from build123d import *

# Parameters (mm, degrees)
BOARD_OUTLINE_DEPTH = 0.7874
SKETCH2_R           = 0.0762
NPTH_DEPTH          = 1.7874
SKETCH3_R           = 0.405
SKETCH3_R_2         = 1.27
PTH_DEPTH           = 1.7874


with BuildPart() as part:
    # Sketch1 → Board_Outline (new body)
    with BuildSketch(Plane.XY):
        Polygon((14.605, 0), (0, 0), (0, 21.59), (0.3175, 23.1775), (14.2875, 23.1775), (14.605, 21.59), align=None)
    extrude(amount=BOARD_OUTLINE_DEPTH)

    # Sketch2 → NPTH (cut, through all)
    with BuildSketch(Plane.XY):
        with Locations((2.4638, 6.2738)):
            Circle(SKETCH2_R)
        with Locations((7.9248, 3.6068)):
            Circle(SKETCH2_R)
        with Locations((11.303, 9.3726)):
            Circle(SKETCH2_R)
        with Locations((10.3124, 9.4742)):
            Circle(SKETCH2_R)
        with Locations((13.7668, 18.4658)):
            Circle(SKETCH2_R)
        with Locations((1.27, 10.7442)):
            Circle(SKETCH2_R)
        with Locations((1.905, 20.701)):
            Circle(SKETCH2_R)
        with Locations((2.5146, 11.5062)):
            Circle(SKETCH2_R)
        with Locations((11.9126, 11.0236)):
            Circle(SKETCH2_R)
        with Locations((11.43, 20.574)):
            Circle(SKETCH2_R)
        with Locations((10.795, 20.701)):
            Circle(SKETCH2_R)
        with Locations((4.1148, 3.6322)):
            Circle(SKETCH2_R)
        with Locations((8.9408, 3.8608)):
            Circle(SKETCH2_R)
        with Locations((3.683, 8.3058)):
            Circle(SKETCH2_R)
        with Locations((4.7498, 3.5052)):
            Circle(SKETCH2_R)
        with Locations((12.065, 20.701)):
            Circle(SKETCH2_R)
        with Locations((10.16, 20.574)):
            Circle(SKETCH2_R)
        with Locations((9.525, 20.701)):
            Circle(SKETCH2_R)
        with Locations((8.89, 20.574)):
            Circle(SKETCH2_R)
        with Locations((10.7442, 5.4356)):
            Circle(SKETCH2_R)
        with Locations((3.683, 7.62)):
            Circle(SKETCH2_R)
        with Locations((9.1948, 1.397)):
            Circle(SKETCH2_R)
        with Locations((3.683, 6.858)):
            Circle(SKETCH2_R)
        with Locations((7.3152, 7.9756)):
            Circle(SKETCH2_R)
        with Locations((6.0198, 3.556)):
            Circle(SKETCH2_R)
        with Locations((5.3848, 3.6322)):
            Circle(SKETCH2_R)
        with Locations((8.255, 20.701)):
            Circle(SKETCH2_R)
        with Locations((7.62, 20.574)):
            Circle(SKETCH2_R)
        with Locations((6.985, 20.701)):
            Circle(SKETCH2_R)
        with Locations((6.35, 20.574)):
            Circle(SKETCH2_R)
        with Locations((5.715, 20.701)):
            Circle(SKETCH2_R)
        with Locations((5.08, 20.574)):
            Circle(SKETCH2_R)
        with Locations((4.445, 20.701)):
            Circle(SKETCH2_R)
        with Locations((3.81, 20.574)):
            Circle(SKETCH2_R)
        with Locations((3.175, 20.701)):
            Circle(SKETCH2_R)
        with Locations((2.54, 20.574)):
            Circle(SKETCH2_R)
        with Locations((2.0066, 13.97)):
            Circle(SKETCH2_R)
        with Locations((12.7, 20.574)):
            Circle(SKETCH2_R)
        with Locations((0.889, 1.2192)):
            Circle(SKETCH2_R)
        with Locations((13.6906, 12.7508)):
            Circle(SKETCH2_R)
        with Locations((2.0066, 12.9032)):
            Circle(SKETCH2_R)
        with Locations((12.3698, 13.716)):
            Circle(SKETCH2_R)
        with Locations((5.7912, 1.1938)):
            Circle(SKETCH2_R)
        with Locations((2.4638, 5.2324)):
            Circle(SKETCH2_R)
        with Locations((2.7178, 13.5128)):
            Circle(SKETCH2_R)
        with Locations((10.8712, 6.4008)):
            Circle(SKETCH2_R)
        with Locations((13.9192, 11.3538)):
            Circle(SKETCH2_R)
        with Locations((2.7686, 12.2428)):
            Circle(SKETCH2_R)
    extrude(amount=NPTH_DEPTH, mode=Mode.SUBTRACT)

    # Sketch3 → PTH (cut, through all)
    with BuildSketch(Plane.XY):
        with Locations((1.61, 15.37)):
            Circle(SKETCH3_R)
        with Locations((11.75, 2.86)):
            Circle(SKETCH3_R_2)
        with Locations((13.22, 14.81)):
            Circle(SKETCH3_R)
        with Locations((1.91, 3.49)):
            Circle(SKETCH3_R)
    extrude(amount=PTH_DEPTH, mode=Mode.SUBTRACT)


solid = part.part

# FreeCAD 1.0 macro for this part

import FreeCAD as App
import Part
import Sketcher
from FreeCAD import Vector
Q = App.Units.Quantity

doc = App.newDocument("Part")
body = doc.addObject("PartDesign::Body", "Body")

sketch1 = body.newObject("Sketcher::SketchObject", "Sketch")
sketch1.AttachmentSupport = (doc.getObject("XY_Plane"), [""])
sketch1.MapMode = "FlatFace"
sketch1.addGeometry(Part.LineSegment(Vector(0, 0, 0), Vector(14.6, 0, 0)), False)
sketch1.addGeometry(Part.LineSegment(Vector(14.6, 0, 0), Vector(14.6, 21.6, 0)), False)
sketch1.addGeometry(Part.LineSegment(Vector(14.6, 21.6, 0), Vector(14.3, 23.2, 0)), False)
sketch1.addGeometry(Part.LineSegment(Vector(14.3, 23.2, 0), Vector(0.3, 23.2, 0)), False)
sketch1.addGeometry(Part.LineSegment(Vector(0.3, 23.2, 0), Vector(0, 21.6, 0)), False)
sketch1.addGeometry(Part.LineSegment(Vector(0, 21.6, 0), Vector(0, 0, 0)), False)
sketch1.addConstraint(Sketcher.Constraint("Coincident", 0, 2, 1, 1))
sketch1.addConstraint(Sketcher.Constraint("Coincident", 1, 2, 2, 1))
sketch1.addConstraint(Sketcher.Constraint("Coincident", 2, 2, 3, 1))
sketch1.addConstraint(Sketcher.Constraint("Coincident", 3, 2, 4, 1))
sketch1.addConstraint(Sketcher.Constraint("Coincident", 4, 2, 5, 1))
sketch1.addConstraint(Sketcher.Constraint("Coincident", 5, 2, 0, 1))
sketch1.addConstraint(Sketcher.Constraint("Horizontal", 0))
sketch1.addConstraint(Sketcher.Constraint("Vertical", 1))
sketch1.addConstraint(Sketcher.Constraint("Horizontal", 3))
sketch1.addConstraint(Sketcher.Constraint("Vertical", 5))
sketch1.addConstraint(Sketcher.Constraint("Coincident", 5, 2, -1, 1))
sketch1.addConstraint(Sketcher.Constraint("Horizontal", 1, 2, 4, 2))
sketch1.addConstraint(Sketcher.Constraint("Equal", 2, 4))
sketch1.addConstraint(Sketcher.Constraint("DistanceX", 3, 2, 3, 1, Q("0.55 in")))
sketch1.addConstraint(Sketcher.Constraint("DistanceY", 1, 1, 1, 2, Q("0.85 in")))
sketch1.addConstraint(Sketcher.Constraint("DistanceX", 0, 1, 0, 2, Q("0.575 in")))
sketch1.addConstraint(Sketcher.Constraint("DistanceY", 1, 2, 2, 2, Q("0.0625 in")))
pad1 = body.newObject("PartDesign::Pad", "Pad")
pad1.Profile = sketch1
pad1.Length = Q("0.031 in")

sketch2 = body.newObject("Sketcher::SketchObject", "Sketch001")
sketch2.AttachmentSupport = (doc.getObject("XY_Plane"), [""])
sketch2.MapMode = "FlatFace"
sketch2.addGeometry(Part.Circle(Vector(2.46, 6.27, 0), Vector(0, 0, 1), 0.08), False)
sketch2.addGeometry(Part.Circle(Vector(7.92, 3.61, 0), Vector(0, 0, 1), 0.08), False)
sketch2.addGeometry(Part.Circle(Vector(11.3, 9.37, 0), Vector(0, 0, 1), 0.08), False)
sketch2.addGeometry(Part.Circle(Vector(10.31, 9.47, 0), Vector(0, 0, 1), 0.08), False)
sketch2.addGeometry(Part.Circle(Vector(13.77, 18.47, 0), Vector(0, 0, 1), 0.08), False)
sketch2.addGeometry(Part.Circle(Vector(1.27, 10.74, 0), Vector(0, 0, 1), 0.08), False)
sketch2.addGeometry(Part.Circle(Vector(1.91, 20.7, 0), Vector(0, 0, 1), 0.08), False)
sketch2.addGeometry(Part.Circle(Vector(2.51, 11.51, 0), Vector(0, 0, 1), 0.08), False)
sketch2.addGeometry(Part.Circle(Vector(11.91, 11.02, 0), Vector(0, 0, 1), 0.08), False)
sketch2.addGeometry(Part.Circle(Vector(11.43, 20.57, 0), Vector(0, 0, 1), 0.08), False)
sketch2.addGeometry(Part.Circle(Vector(10.79, 20.7, 0), Vector(0, 0, 1), 0.08), False)
sketch2.addGeometry(Part.Circle(Vector(4.11, 3.63, 0), Vector(0, 0, 1), 0.08), False)
sketch2.addGeometry(Part.Circle(Vector(8.94, 3.86, 0), Vector(0, 0, 1), 0.08), False)
sketch2.addGeometry(Part.Circle(Vector(3.68, 8.31, 0), Vector(0, 0, 1), 0.08), False)
sketch2.addGeometry(Part.Circle(Vector(4.75, 3.51, 0), Vector(0, 0, 1), 0.08), False)
sketch2.addGeometry(Part.Circle(Vector(12.06, 20.7, 0), Vector(0, 0, 1), 0.08), False)
sketch2.addGeometry(Part.Circle(Vector(10.16, 20.57, 0), Vector(0, 0, 1), 0.08), False)
sketch2.addGeometry(Part.Circle(Vector(9.53, 20.7, 0), Vector(0, 0, 1), 0.08), False)
sketch2.addGeometry(Part.Circle(Vector(8.89, 20.57, 0), Vector(0, 0, 1), 0.08), False)
sketch2.addGeometry(Part.Circle(Vector(10.74, 5.44, 0), Vector(0, 0, 1), 0.08), False)
sketch2.addGeometry(Part.Circle(Vector(3.68, 7.62, 0), Vector(0, 0, 1), 0.08), False)
sketch2.addGeometry(Part.Circle(Vector(9.19, 1.4, 0), Vector(0, 0, 1), 0.08), False)
sketch2.addGeometry(Part.Circle(Vector(3.68, 6.86, 0), Vector(0, 0, 1), 0.08), False)
sketch2.addGeometry(Part.Circle(Vector(7.32, 7.98, 0), Vector(0, 0, 1), 0.08), False)
sketch2.addGeometry(Part.Circle(Vector(6.02, 3.56, 0), Vector(0, 0, 1), 0.08), False)
sketch2.addGeometry(Part.Circle(Vector(5.38, 3.63, 0), Vector(0, 0, 1), 0.08), False)
sketch2.addGeometry(Part.Circle(Vector(8.26, 20.7, 0), Vector(0, 0, 1), 0.08), False)
sketch2.addGeometry(Part.Circle(Vector(7.62, 20.57, 0), Vector(0, 0, 1), 0.08), False)
sketch2.addGeometry(Part.Circle(Vector(6.99, 20.7, 0), Vector(0, 0, 1), 0.08), False)
sketch2.addGeometry(Part.Circle(Vector(6.35, 20.57, 0), Vector(0, 0, 1), 0.08), False)
sketch2.addGeometry(Part.Circle(Vector(5.71, 20.7, 0), Vector(0, 0, 1), 0.08), False)
sketch2.addGeometry(Part.Circle(Vector(5.08, 20.57, 0), Vector(0, 0, 1), 0.08), False)
sketch2.addGeometry(Part.Circle(Vector(4.45, 20.7, 0), Vector(0, 0, 1), 0.08), False)
sketch2.addGeometry(Part.Circle(Vector(3.81, 20.57, 0), Vector(0, 0, 1), 0.08), False)
sketch2.addGeometry(Part.Circle(Vector(3.17, 20.7, 0), Vector(0, 0, 1), 0.08), False)
sketch2.addGeometry(Part.Circle(Vector(2.54, 20.57, 0), Vector(0, 0, 1), 0.08), False)
sketch2.addGeometry(Part.Circle(Vector(2.01, 13.97, 0), Vector(0, 0, 1), 0.08), False)
sketch2.addGeometry(Part.Circle(Vector(12.7, 20.57, 0), Vector(0, 0, 1), 0.08), False)
sketch2.addGeometry(Part.Circle(Vector(0.89, 1.22, 0), Vector(0, 0, 1), 0.08), False)
sketch2.addGeometry(Part.Circle(Vector(13.69, 12.75, 0), Vector(0, 0, 1), 0.08), False)
sketch2.addGeometry(Part.Circle(Vector(2.01, 12.9, 0), Vector(0, 0, 1), 0.08), False)
sketch2.addGeometry(Part.Circle(Vector(12.37, 13.72, 0), Vector(0, 0, 1), 0.08), False)
sketch2.addGeometry(Part.Circle(Vector(5.79, 1.19, 0), Vector(0, 0, 1), 0.08), False)
sketch2.addGeometry(Part.Circle(Vector(2.46, 5.23, 0), Vector(0, 0, 1), 0.08), False)
sketch2.addGeometry(Part.Circle(Vector(2.72, 13.51, 0), Vector(0, 0, 1), 0.08), False)
sketch2.addGeometry(Part.Circle(Vector(10.87, 6.4, 0), Vector(0, 0, 1), 0.08), False)
sketch2.addGeometry(Part.Circle(Vector(13.92, 11.35, 0), Vector(0, 0, 1), 0.08), False)
sketch2.addGeometry(Part.Circle(Vector(2.77, 12.24, 0), Vector(0, 0, 1), 0.08), False)
sketch2.addConstraint(Sketcher.Constraint("Equal", 0, 1))
sketch2.addConstraint(Sketcher.Constraint("Equal", 1, 2))
sketch2.addConstraint(Sketcher.Constraint("Equal", 2, 3))
sketch2.addConstraint(Sketcher.Constraint("Equal", 3, 4))
sketch2.addConstraint(Sketcher.Constraint("Equal", 4, 5))
sketch2.addConstraint(Sketcher.Constraint("Equal", 5, 6))
sketch2.addConstraint(Sketcher.Constraint("Equal", 6, 7))
sketch2.addConstraint(Sketcher.Constraint("Equal", 7, 8))
sketch2.addConstraint(Sketcher.Constraint("Equal", 8, 9))
sketch2.addConstraint(Sketcher.Constraint("Equal", 9, 10))
sketch2.addConstraint(Sketcher.Constraint("Equal", 10, 11))
sketch2.addConstraint(Sketcher.Constraint("Equal", 11, 12))
sketch2.addConstraint(Sketcher.Constraint("Equal", 12, 13))
sketch2.addConstraint(Sketcher.Constraint("Equal", 13, 14))
sketch2.addConstraint(Sketcher.Constraint("Equal", 14, 15))
sketch2.addConstraint(Sketcher.Constraint("Equal", 15, 16))
sketch2.addConstraint(Sketcher.Constraint("Equal", 16, 17))
sketch2.addConstraint(Sketcher.Constraint("Equal", 17, 18))
sketch2.addConstraint(Sketcher.Constraint("Equal", 18, 19))
sketch2.addConstraint(Sketcher.Constraint("Equal", 19, 20))
sketch2.addConstraint(Sketcher.Constraint("Equal", 20, 21))
sketch2.addConstraint(Sketcher.Constraint("Equal", 21, 22))
sketch2.addConstraint(Sketcher.Constraint("Equal", 22, 23))
sketch2.addConstraint(Sketcher.Constraint("Equal", 23, 24))
sketch2.addConstraint(Sketcher.Constraint("Equal", 24, 25))
sketch2.addConstraint(Sketcher.Constraint("Equal", 25, 26))
sketch2.addConstraint(Sketcher.Constraint("Equal", 26, 27))
sketch2.addConstraint(Sketcher.Constraint("Equal", 27, 28))
sketch2.addConstraint(Sketcher.Constraint("Equal", 28, 29))
sketch2.addConstraint(Sketcher.Constraint("Equal", 29, 30))
sketch2.addConstraint(Sketcher.Constraint("Equal", 30, 31))
sketch2.addConstraint(Sketcher.Constraint("Equal", 31, 32))
sketch2.addConstraint(Sketcher.Constraint("Equal", 32, 33))
sketch2.addConstraint(Sketcher.Constraint("Equal", 33, 34))
sketch2.addConstraint(Sketcher.Constraint("Equal", 34, 35))
sketch2.addConstraint(Sketcher.Constraint("Equal", 35, 36))
sketch2.addConstraint(Sketcher.Constraint("Equal", 36, 37))
sketch2.addConstraint(Sketcher.Constraint("Equal", 37, 38))
sketch2.addConstraint(Sketcher.Constraint("Equal", 38, 39))
sketch2.addConstraint(Sketcher.Constraint("Equal", 39, 40))
sketch2.addConstraint(Sketcher.Constraint("Equal", 40, 41))
sketch2.addConstraint(Sketcher.Constraint("Equal", 41, 42))
sketch2.addConstraint(Sketcher.Constraint("Equal", 42, 43))
sketch2.addConstraint(Sketcher.Constraint("Equal", 43, 44))
sketch2.addConstraint(Sketcher.Constraint("Equal", 44, 45))
sketch2.addConstraint(Sketcher.Constraint("Equal", 45, 46))
sketch2.addConstraint(Sketcher.Constraint("Equal", 46, 47))
sketch2.addConstraint(Sketcher.Constraint("Horizontal", 6, 3, 10, 3))
sketch2.addConstraint(Sketcher.Constraint("Horizontal", 10, 3, 15, 3))
sketch2.addConstraint(Sketcher.Constraint("Horizontal", 9, 3, 16, 3))
sketch2.addConstraint(Sketcher.Constraint("Horizontal", 15, 3, 17, 3))
sketch2.addConstraint(Sketcher.Constraint("Horizontal", 16, 3, 18, 3))
sketch2.addConstraint(Sketcher.Constraint("Horizontal", 11, 3, 25, 3))
sketch2.addConstraint(Sketcher.Constraint("Horizontal", 17, 3, 26, 3))
sketch2.addConstraint(Sketcher.Constraint("Horizontal", 18, 3, 27, 3))
sketch2.addConstraint(Sketcher.Constraint("Horizontal", 26, 3, 28, 3))
sketch2.addConstraint(Sketcher.Constraint("Horizontal", 27, 3, 29, 3))
sketch2.addConstraint(Sketcher.Constraint("Horizontal", 28, 3, 30, 3))
sketch2.addConstraint(Sketcher.Constraint("Horizontal", 29, 3, 31, 3))
sketch2.addConstraint(Sketcher.Constraint("Horizontal", 30, 3, 32, 3))
sketch2.addConstraint(Sketcher.Constraint("Horizontal", 31, 3, 33, 3))
sketch2.addConstraint(Sketcher.Constraint("Horizontal", 32, 3, 34, 3))
sketch2.addConstraint(Sketcher.Constraint("Horizontal", 33, 3, 35, 3))
sketch2.addConstraint(Sketcher.Constraint("Horizontal", 35, 3, 37, 3))
sketch2.addConstraint(Sketcher.Constraint("Vertical", 13, 3, 20, 3))
sketch2.addConstraint(Sketcher.Constraint("Vertical", 20, 3, 22, 3))
sketch2.addConstraint(Sketcher.Constraint("Vertical", 36, 3, 40, 3))
sketch2.addConstraint(Sketcher.Constraint("Vertical", 0, 3, 43, 3))
sketch2.addConstraint(Sketcher.Constraint("Diameter", 0, Q("0.006 in")))
sketch2.addConstraint(Sketcher.Constraint("DistanceX", -1, 1, 16, 3, Q("0.4 in")))
sketch2.addConstraint(Sketcher.Constraint("DistanceY", -1, 1, 20, 3, Q("0.3 in")))
sketch2.addConstraint(Sketcher.Constraint("DistanceX", -1, 1, 27, 3, Q("0.3 in")))
sketch2.addConstraint(Sketcher.Constraint("DistanceX", -1, 1, 31, 3, Q("0.2 in")))
sketch2.addConstraint(Sketcher.Constraint("DistanceX", -1, 1, 35, 3, Q("0.1 in")))
sketch2.addConstraint(Sketcher.Constraint("DistanceX", -1, 1, 37, 3, Q("0.5 in")))
sketch2.addConstraint(Sketcher.Constraint("DistanceX", 6, 3, 15, 3, Q("0.4 in")))
sketch2.addConstraint(Sketcher.Constraint("DistanceX", 17, 3, 15, 3, Q("0.1 in")))
sketch2.addConstraint(Sketcher.Constraint("DistanceX", 18, 3, 9, 3, Q("0.1 in")))
sketch2.addConstraint(Sketcher.Constraint("DistanceX", 11, 3, 21, 3, Q("0.2 in")))
sketch2.addConstraint(Sketcher.Constraint("DistanceX", 25, 3, 1, 3, Q("0.1 in")))
sketch2.addConstraint(Sketcher.Constraint("DistanceX", 26, 3, 10, 3, Q("0.1 in")))
sketch2.addConstraint(Sketcher.Constraint("DistanceX", 28, 3, 17, 3, Q("0.1 in")))
sketch2.addConstraint(Sketcher.Constraint("DistanceX", 29, 3, 18, 3, Q("0.1 in")))
sketch2.addConstraint(Sketcher.Constraint("DistanceX", 30, 3, 26, 3, Q("0.1 in")))
sketch2.addConstraint(Sketcher.Constraint("DistanceX", 6, 3, 32, 3, Q("0.1 in")))
sketch2.addConstraint(Sketcher.Constraint("DistanceX", 33, 3, 29, 3, Q("0.1 in")))
sketch2.addConstraint(Sketcher.Constraint("DistanceX", 34, 3, 30, 3, Q("0.1 in")))
sketch2.addConstraint(Sketcher.Constraint("DistanceY", 12, 3, 45, 3, Q("0.1 in")))
sketch2.addConstraint(Sketcher.Constraint("DistanceX", -1, 1, 5, 3, Q("0.05 in")))
sketch2.addConstraint(Sketcher.Constraint("DistanceX", -1, 1, 9, 3, Q("0.45 in")))
sketch2.addConstraint(Sketcher.Constraint("DistanceY", -1, 1, 9, 3, Q("0.81 in")))
sketch2.addConstraint(Sketcher.Constraint("DistanceY", -1, 1, 22, 3, Q("0.27 in")))
sketch2.addConstraint(Sketcher.Constraint("DistanceY", -1, 1, 24, 3, Q("0.14 in")))
sketch2.addConstraint(Sketcher.Constraint("DistanceY", -1, 1, 36, 3, Q("0.55 in")))
sketch2.addConstraint(Sketcher.Constraint("DistanceY", -1, 1, 41, 3, Q("0.54 in")))
sketch2.addConstraint(Sketcher.Constraint("DistanceX", 1, 3, 4, 3, Q("0.23 in")))
sketch2.addConstraint(Sketcher.Constraint("DistanceY", 0, 3, 4, 3, Q("0.48 in")))
sketch2.addConstraint(Sketcher.Constraint("DistanceY", 3, 3, 5, 3, Q("0.05 in")))
sketch2.addConstraint(Sketcher.Constraint("DistanceX", 6, 3, 2, 3, Q("0.37 in")))
sketch2.addConstraint(Sketcher.Constraint("DistanceY", 5, 3, 7, 3, Q("0.03 in")))
sketch2.addConstraint(Sketcher.Constraint("DistanceX", 7, 3, 8, 3, Q("0.37 in")))
sketch2.addConstraint(Sketcher.Constraint("DistanceX", 6, 3, 10, 3, Q("0.35 in")))
sketch2.addConstraint(Sketcher.Constraint("DistanceX", 11, 3, 1, 3, Q("0.15 in")))
sketch2.addConstraint(Sketcher.Constraint("DistanceY", 11, 3, 5, 3, Q("0.28 in")))
sketch2.addConstraint(Sketcher.Constraint("DistanceX", 1, 3, 12, 3, Q("0.04 in")))
sketch2.addConstraint(Sketcher.Constraint("DistanceY", 1, 3, 12, 3, Q("0.01 in")))
sketch2.addConstraint(Sketcher.Constraint("DistanceY", 0, 3, 13, 3, Q("0.08 in")))
sketch2.addConstraint(Sketcher.Constraint("DistanceX", 0, 3, 14, 3, Q("0.09 in")))
sketch2.addConstraint(Sketcher.Constraint("DistanceY", 19, 3, 8, 3, Q("0.22 in")))
sketch2.addConstraint(Sketcher.Constraint("DistanceX", 14, 3, 24, 3, Q("0.05 in")))
sketch2.addConstraint(Sketcher.Constraint("DistanceX", 36, 3, 7, 3, Q("0.02 in")))
sketch2.addConstraint(Sketcher.Constraint("DistanceY", 38, 3, 14, 3, Q("0.09 in")))
sketch2.addConstraint(Sketcher.Constraint("DistanceX", 8, 3, 39, 3, Q("0.07 in")))
sketch2.addConstraint(Sketcher.Constraint("DistanceX", 23, 3, 45, 3, Q("0.14 in")))
sketch2.addConstraint(Sketcher.Constraint("DistanceX", 7, 3, 47, 3, Q("0.01 in")))
sketch2.addConstraint(Sketcher.Constraint("DistanceY", 47, 3, 44, 3, Q("0.05 in")))
sketch2.addConstraint(Sketcher.Constraint("DistanceX", -1, 1, 0, 3, Q("0.097 in")))
sketch2.addConstraint(Sketcher.Constraint("DistanceY", -1, 1, 0, 3, Q("0.247 in")))
sketch2.addConstraint(Sketcher.Constraint("DistanceX", -1, 1, 1, 3, Q("0.312 in")))
sketch2.addConstraint(Sketcher.Constraint("DistanceY", -1, 1, 1, 3, Q("0.142 in")))
sketch2.addConstraint(Sketcher.Constraint("DistanceX", -1, 1, 2, 3, Q("0.445 in")))
sketch2.addConstraint(Sketcher.Constraint("DistanceY", -1, 1, 2, 3, Q("0.369 in")))
sketch2.addConstraint(Sketcher.Constraint("DistanceX", -1, 1, 3, 3, Q("0.406 in")))
sketch2.addConstraint(Sketcher.Constraint("DistanceY", -1, 1, 3, 3, Q("0.373 in")))
sketch2.addConstraint(Sketcher.Constraint("DistanceY", -1, 1, 6, 3, Q("0.815 in")))
sketch2.addConstraint(Sketcher.Constraint("DistanceX", -1, 1, 7, 3, Q("0.099 in")))
sketch2.addConstraint(Sketcher.Constraint("DistanceY", -1, 1, 8, 3, Q("0.434 in")))
sketch2.addConstraint(Sketcher.Constraint("DistanceX", -1, 1, 13, 3, Q("0.145 in")))
sketch2.addConstraint(Sketcher.Constraint("DistanceY", -1, 1, 14, 3, Q("0.138 in")))
sketch2.addConstraint(Sketcher.Constraint("DistanceX", -1, 1, 19, 3, Q("0.423 in")))
sketch2.addConstraint(Sketcher.Constraint("DistanceY", -1, 1, 21, 3, Q("0.055 in")))
sketch2.addConstraint(Sketcher.Constraint("DistanceX", -1, 1, 23, 3, Q("0.288 in")))
sketch2.addConstraint(Sketcher.Constraint("DistanceY", -1, 1, 23, 3, Q("0.314 in")))
sketch2.addConstraint(Sketcher.Constraint("DistanceX", -1, 1, 38, 3, Q("0.035 in")))
sketch2.addConstraint(Sketcher.Constraint("DistanceY", -1, 1, 39, 3, Q("0.502 in")))
sketch2.addConstraint(Sketcher.Constraint("DistanceY", -1, 1, 40, 3, Q("0.508 in")))
sketch2.addConstraint(Sketcher.Constraint("DistanceX", -1, 1, 41, 3, Q("0.487 in")))
sketch2.addConstraint(Sketcher.Constraint("DistanceX", -1, 1, 42, 3, Q("0.228 in")))
sketch2.addConstraint(Sketcher.Constraint("DistanceY", -1, 1, 42, 3, Q("0.047 in")))
sketch2.addConstraint(Sketcher.Constraint("DistanceY", -1, 1, 43, 3, Q("0.206 in")))
sketch2.addConstraint(Sketcher.Constraint("DistanceX", -1, 1, 44, 3, Q("0.107 in")))
sketch2.addConstraint(Sketcher.Constraint("DistanceY", -1, 1, 44, 3, Q("0.532 in")))
sketch2.addConstraint(Sketcher.Constraint("DistanceX", -1, 1, 46, 3, Q("0.548 in")))
sketch2.addConstraint(Sketcher.Constraint("DistanceY", -1, 1, 46, 3, Q("0.447 in")))
pocket1 = body.newObject("PartDesign::Pocket", "Pocket")
pocket1.Profile = sketch2
pocket1.Type = "ThroughAll"
pocket1.Reversed = True

sketch3 = body.newObject("Sketcher::SketchObject", "Sketch002")
sketch3.AttachmentSupport = (doc.getObject("XY_Plane"), [""])
sketch3.MapMode = "FlatFace"
sketch3.addGeometry(Part.Circle(Vector(1.61, 15.37, 0), Vector(0, 0, 1), 0.41), False)
sketch3.addGeometry(Part.Circle(Vector(11.75, 2.86, 0), Vector(0, 0, 1), 1.27), False)
sketch3.addGeometry(Part.Circle(Vector(13.22, 14.81, 0), Vector(0, 0, 1), 0.41), False)
sketch3.addGeometry(Part.Circle(Vector(1.91, 3.49, 0), Vector(0, 0, 1), 0.41), False)
sketch3.addConstraint(Sketcher.Constraint("Equal", 0, 2))
sketch3.addConstraint(Sketcher.Constraint("Equal", 2, 3))
sketch3.addConstraint(Sketcher.Constraint("Diameter", 1, Q("0.1 in")))
sketch3.addConstraint(Sketcher.Constraint("Diameter", 0, Q("0.81 mm")))
sketch3.addConstraint(Sketcher.Constraint("DistanceX", -1, 1, 0, 3, Q("1.61 mm")))
sketch3.addConstraint(Sketcher.Constraint("DistanceY", -1, 1, 0, 3, Q("15.37 mm")))
sketch3.addConstraint(Sketcher.Constraint("DistanceX", -1, 1, 1, 3, Q("11.75 mm")))
sketch3.addConstraint(Sketcher.Constraint("DistanceY", -1, 1, 1, 3, Q("2.86 mm")))
sketch3.addConstraint(Sketcher.Constraint("DistanceX", -1, 1, 2, 3, Q("13.22 mm")))
sketch3.addConstraint(Sketcher.Constraint("DistanceY", -1, 1, 2, 3, Q("14.81 mm")))
sketch3.addConstraint(Sketcher.Constraint("DistanceX", -1, 1, 3, 3, Q("1.91 mm")))
sketch3.addConstraint(Sketcher.Constraint("DistanceY", -1, 1, 3, 3, Q("3.49 mm")))
pocket2 = body.newObject("PartDesign::Pocket", "Pocket001")
pocket2.Profile = sketch3
pocket2.Type = "ThroughAll"
pocket2.Reversed = True

doc.recompute()
